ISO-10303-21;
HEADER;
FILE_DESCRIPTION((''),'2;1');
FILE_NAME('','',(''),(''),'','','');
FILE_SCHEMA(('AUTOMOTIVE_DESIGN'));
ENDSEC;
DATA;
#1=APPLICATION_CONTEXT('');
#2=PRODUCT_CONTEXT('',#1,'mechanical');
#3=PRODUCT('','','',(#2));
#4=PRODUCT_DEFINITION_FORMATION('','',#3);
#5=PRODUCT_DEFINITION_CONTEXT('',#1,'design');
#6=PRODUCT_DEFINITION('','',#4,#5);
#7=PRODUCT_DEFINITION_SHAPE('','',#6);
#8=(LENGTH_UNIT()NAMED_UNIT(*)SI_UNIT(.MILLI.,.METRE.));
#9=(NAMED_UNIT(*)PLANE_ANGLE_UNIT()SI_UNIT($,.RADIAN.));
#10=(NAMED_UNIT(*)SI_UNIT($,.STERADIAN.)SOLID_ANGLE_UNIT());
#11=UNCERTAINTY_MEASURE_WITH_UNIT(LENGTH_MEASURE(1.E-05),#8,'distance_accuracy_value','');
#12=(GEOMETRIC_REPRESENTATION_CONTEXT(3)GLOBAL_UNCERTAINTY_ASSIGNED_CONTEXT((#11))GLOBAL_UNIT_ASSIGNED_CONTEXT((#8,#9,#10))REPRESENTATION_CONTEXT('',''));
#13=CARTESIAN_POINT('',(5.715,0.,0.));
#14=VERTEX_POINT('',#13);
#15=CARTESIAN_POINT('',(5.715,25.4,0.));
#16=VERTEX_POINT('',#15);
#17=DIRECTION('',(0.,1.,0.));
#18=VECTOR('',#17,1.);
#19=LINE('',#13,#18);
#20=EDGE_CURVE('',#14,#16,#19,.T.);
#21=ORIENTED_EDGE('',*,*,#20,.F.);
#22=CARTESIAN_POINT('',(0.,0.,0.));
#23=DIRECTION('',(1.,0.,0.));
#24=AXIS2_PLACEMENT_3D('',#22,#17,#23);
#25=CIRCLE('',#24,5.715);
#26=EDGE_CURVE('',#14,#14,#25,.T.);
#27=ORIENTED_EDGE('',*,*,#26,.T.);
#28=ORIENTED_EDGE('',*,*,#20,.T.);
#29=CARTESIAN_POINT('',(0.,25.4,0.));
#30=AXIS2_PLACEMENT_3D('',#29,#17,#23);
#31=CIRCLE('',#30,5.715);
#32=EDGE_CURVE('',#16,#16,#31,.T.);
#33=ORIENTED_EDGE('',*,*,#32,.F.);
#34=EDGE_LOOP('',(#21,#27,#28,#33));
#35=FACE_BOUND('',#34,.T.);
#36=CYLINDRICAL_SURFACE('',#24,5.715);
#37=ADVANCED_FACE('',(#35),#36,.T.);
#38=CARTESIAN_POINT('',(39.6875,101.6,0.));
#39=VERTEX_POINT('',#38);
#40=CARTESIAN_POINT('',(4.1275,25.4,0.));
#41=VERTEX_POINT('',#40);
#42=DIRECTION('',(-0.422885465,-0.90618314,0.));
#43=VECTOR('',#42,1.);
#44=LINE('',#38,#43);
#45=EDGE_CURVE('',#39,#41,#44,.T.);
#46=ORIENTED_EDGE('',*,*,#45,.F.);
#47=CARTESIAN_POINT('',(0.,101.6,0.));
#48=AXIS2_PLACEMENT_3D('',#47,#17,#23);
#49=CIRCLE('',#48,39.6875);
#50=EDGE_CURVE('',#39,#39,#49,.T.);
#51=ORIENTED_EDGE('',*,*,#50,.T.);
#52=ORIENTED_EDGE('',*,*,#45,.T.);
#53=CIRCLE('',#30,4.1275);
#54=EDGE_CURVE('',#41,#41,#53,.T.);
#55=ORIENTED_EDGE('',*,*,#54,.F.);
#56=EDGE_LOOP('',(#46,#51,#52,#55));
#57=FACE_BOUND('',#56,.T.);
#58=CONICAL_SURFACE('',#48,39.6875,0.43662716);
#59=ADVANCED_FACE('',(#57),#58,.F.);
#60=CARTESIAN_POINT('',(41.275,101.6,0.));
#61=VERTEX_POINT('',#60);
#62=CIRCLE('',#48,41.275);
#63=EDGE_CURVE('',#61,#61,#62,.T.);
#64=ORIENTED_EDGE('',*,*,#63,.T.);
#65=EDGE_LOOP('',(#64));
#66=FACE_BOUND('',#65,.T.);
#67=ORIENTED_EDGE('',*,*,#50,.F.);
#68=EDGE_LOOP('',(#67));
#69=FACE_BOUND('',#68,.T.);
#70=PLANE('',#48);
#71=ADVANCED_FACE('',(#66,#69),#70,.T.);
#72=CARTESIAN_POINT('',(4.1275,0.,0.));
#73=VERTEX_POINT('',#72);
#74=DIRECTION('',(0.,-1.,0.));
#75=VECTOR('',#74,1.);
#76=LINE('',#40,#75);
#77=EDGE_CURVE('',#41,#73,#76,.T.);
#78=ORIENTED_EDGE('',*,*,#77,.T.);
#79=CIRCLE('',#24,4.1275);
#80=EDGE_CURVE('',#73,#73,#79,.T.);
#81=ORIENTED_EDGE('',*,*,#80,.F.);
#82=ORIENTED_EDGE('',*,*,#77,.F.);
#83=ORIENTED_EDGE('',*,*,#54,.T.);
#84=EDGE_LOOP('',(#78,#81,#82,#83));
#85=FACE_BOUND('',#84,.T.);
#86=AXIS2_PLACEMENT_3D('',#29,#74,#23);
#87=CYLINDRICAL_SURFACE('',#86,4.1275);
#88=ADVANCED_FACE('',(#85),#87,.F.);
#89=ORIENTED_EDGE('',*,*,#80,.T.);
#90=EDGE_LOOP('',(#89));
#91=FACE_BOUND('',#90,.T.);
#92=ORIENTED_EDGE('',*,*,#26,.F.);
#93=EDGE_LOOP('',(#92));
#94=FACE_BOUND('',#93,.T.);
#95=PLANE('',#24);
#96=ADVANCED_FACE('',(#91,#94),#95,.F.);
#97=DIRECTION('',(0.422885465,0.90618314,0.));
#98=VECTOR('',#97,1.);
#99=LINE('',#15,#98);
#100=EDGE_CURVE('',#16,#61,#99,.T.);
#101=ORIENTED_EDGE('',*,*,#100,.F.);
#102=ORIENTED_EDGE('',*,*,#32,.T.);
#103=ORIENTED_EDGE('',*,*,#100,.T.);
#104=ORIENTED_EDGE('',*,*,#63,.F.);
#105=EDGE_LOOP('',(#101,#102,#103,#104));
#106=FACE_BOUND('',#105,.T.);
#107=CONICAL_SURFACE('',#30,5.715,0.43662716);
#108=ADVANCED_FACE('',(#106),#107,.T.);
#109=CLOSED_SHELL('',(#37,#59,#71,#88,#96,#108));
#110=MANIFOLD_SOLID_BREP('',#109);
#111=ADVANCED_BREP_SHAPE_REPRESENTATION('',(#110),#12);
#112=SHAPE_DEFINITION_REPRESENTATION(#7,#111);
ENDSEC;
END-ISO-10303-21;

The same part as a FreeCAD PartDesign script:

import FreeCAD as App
import Part
import Sketcher

V = App.Vector
Q = App.Units.Quantity

doc = App.newDocument("Part")
body = doc.addObject("PartDesign::Body", "Body")

# Sketch on XY plane
sketch1 = body.newObject("Sketcher::SketchObject", "Sketch")
sketch1.AttachmentSupport = (doc.getObject("XY_Plane"), [""])
sketch1.MapMode = "FlatFace"
sketch1.addGeometry(Part.LineSegment(V(4.1275, 0, 0), V(5.715, 0, 0)), False)
sketch1.addGeometry(Part.LineSegment(V(5.715, 0, 0), V(5.715, 25.4, 0)), False)
sketch1.addGeometry(Part.LineSegment(V(5.715, 25.4, 0), V(41.275, 101.6, 0)), False)
sketch1.addGeometry(Part.LineSegment(V(41.275, 101.6, 0), V(39.6875, 101.6, 0)), False)
sketch1.addGeometry(Part.LineSegment(V(39.6875, 101.6, 0), V(4.1275, 25.4, 0)), False)
sketch1.addGeometry(Part.LineSegment(V(4.1275, 25.4, 0), V(4.1275, 0, 0)), False)
sketch1.addConstraint(Sketcher.Constraint("Coincident", 0, 2, 1, 1))
sketch1.addConstraint(Sketcher.Constraint("Coincident", 1, 2, 2, 1))
sketch1.addConstraint(Sketcher.Constraint("Coincident", 2, 2, 3, 1))
sketch1.addConstraint(Sketcher.Constraint("Coincident", 3, 2, 4, 1))
sketch1.addConstraint(Sketcher.Constraint("Coincident", 4, 2, 5, 1))
sketch1.addConstraint(Sketcher.Constraint("Coincident", 5, 2, 0, 1))
sketch1.addConstraint(Sketcher.Constraint("Horizontal", 0))
sketch1.addConstraint(Sketcher.Constraint("Vertical", 1))
sketch1.addConstraint(Sketcher.Constraint("Horizontal", 3))
sketch1.addConstraint(Sketcher.Constraint("Vertical", 5))
sketch1.addConstraint(Sketcher.Constraint("PointOnObject", 0, 2, -1))
sketch1.addConstraint(Sketcher.Constraint("Parallel", 2, 4))
sketch1.addConstraint(Sketcher.Constraint("Horizontal", 1, 2, 4, 2))
sketch1.addConstraint(Sketcher.Constraint("DistanceY", 1, 1, 1, 2, Q("1 in")))
sketch1.addConstraint(Sketcher.Constraint("DistanceY", -1, 1, 2, 2, Q("4 in")))
sketch1.addConstraint(Sketcher.Constraint("DistanceX", 0, 1, 0, 2, Q("0.0625 in")))
sketch1.addConstraint(Sketcher.Constraint("DistanceX", -1, 1, 0, 2, Q("0.225 in")))
sketch1.addConstraint(Sketcher.Constraint("DistanceX", -1, 1, 2, 2, Q("1.625 in")))
revolution = body.newObject("PartDesign::Revolution", "Revolution")
revolution.Profile = sketch1
revolution.ReferenceAxis = (sketch1, ["V_Axis"])
revolution.Angle = 360

doc.recompute()
